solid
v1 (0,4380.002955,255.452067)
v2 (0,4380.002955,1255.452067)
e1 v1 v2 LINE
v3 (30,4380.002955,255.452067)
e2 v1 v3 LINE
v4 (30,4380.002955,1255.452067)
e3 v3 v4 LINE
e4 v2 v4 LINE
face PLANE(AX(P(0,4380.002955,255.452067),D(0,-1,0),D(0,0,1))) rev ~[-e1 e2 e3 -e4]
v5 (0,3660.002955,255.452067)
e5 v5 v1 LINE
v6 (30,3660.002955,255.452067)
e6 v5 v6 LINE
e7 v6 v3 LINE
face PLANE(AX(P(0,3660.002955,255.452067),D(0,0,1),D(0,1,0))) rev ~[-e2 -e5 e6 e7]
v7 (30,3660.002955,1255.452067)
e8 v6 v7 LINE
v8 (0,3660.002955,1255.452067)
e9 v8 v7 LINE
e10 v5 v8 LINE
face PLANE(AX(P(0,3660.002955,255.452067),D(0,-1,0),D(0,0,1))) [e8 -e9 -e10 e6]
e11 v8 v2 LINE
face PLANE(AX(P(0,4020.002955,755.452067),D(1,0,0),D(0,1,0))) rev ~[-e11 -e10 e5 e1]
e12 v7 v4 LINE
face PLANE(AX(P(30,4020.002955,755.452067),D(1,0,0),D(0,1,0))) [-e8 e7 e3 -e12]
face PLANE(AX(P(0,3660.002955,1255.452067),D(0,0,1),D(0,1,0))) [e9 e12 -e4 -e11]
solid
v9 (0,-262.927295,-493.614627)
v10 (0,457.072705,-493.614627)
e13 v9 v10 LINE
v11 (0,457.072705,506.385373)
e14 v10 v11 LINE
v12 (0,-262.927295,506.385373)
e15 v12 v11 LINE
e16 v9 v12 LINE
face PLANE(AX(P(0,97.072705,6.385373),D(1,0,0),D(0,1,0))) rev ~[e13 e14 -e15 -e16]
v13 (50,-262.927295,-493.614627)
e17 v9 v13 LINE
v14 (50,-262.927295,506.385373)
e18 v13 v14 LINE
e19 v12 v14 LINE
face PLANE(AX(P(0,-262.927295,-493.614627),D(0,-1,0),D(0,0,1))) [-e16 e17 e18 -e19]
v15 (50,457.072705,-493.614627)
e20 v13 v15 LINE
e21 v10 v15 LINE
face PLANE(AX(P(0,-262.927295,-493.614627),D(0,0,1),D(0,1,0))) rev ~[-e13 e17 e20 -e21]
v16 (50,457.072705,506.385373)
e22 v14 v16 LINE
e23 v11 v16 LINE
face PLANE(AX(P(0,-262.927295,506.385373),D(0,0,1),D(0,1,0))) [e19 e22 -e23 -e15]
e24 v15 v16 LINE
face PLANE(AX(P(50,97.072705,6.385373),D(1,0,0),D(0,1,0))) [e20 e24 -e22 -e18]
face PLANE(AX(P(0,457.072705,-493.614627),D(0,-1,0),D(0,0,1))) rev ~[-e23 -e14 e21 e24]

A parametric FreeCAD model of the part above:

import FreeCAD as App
import Part
import Sketcher

V = App.Vector


def add_polygon(sketch, points):
    """Adds a closed chain of lines whose ends are joined by coincident constraints."""
    first, n = sketch.GeometryCount, len(points)
    for a, b in zip(points, points[1:] + points[:1]):
        sketch.addGeometry(Part.LineSegment(App.Vector(*a, 0), App.Vector(*b, 0)), False)
    for i in range(n):
        sketch.addConstraint(Sketcher.Constraint("Coincident", first + i, 2, first + (i + 1) % n, 1))

doc = App.newDocument("Part")
body = doc.addObject("PartDesign::Body", "Body")

# Sketch on YZ plane
sketch1 = body.newObject("Sketcher::SketchObject", "Sketch")
sketch1.AttachmentSupport = (doc.getObject("YZ_Plane"), [""])
sketch1.MapMode = "FlatFace"
add_polygon(sketch1, [(-263, 506), (-263, -494), (457, -494), (457, 506)])  # lines 0-3
sketch1.addConstraint([
    Sketcher.Constraint("Vertical", 0),
    Sketcher.Constraint("Horizontal", 1),
    Sketcher.Constraint("Vertical", 2),
    Sketcher.Constraint("Horizontal", 3),
    Sketcher.Constraint("DistanceX", 1, 1, 1, 2, 720.0),
    Sketcher.Constraint("DistanceY", 0, 2, 0, 1, 1000.0),
    Sketcher.Constraint("DistanceX", 0, 2, -1, 1, 262.927295),
    Sketcher.Constraint("DistanceY", 0, 2, -1, 1, 493.614627),
])
pad1 = body.newObject("PartDesign::Pad", "Pad")
pad1.Profile = sketch1
pad1.Length = 50
body2 = doc.addObject("PartDesign::Body", "Body001")

# Sketch on YZ plane
sketch2 = body2.newObject("Sketcher::SketchObject", "Sketch001")
sketch2.AttachmentSupport = (doc.getObject("YZ_Plane001"), [""])
sketch2.MapMode = "FlatFace"
add_polygon(sketch2, [(3660, 1255), (3660, 255), (4380, 255), (4380, 1255)])  # lines 0-3
sketch2.addConstraint([
    Sketcher.Constraint("Vertical", 0),
    Sketcher.Constraint("Horizontal", 1),
    Sketcher.Constraint("Vertical", 2),
    Sketcher.Constraint("Horizontal", 3),
    Sketcher.Constraint("DistanceX", 1, 1, 1, 2, 720.0),
    Sketcher.Constraint("DistanceY", 0, 2, 0, 1, 1000.0),
    Sketcher.Constraint("DistanceX", -1, 1, 0, 2, 3660.002955),
    Sketcher.Constraint("DistanceY", -1, 1, 0, 2, 255.452067),
])
pad2 = body2.newObject("PartDesign::Pad", "Pad001")
pad2.Profile = sketch2
pad2.Length = 30

doc.recompute()
